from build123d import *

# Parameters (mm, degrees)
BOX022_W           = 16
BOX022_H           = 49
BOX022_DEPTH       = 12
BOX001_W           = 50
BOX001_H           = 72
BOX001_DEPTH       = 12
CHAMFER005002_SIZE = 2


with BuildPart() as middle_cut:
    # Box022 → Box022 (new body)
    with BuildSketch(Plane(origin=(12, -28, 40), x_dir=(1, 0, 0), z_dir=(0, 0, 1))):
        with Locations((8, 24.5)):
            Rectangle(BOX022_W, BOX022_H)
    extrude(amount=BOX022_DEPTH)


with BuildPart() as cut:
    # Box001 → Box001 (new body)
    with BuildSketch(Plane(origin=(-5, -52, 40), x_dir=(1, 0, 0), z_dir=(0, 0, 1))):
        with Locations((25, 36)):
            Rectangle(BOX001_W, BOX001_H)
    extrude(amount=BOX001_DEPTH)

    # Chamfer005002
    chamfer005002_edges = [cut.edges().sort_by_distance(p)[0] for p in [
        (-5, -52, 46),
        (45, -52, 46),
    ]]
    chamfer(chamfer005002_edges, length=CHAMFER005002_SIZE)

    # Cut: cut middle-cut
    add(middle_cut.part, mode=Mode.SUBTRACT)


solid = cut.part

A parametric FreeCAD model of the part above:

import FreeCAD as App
import Part
import Sketcher

V = App.Vector


def edges_at(feature, points):
    """Names of the edges that pass closest to the given points."""
    edges = feature.Shape.Edges
    near = lambda p: min(range(len(edges)), key=lambda i: edges[i].distToShape(Part.Vertex(*p))[0])
    return sorted({f"Edge{near(p) + 1}" for p in points})


def add_polygon(sketch, points):
    """Adds a closed chain of lines whose ends are joined by coincident constraints."""
    first, n = sketch.GeometryCount, len(points)
    for a, b in zip(points, points[1:] + points[:1]):
        sketch.addGeometry(Part.LineSegment(App.Vector(*a, 0), App.Vector(*b, 0)), False)
    for i in range(n):
        sketch.addConstraint(Sketcher.Constraint("Coincident", first + i, 2, first + (i + 1) % n, 1))

doc = App.newDocument("Part")
body = doc.addObject("PartDesign::Body", "Body")

# Sketch on XY plane
sketch1 = doc.addObject("Sketcher::SketchObject", "Sketch")
body.addObject(sketch1)
sketch1.AttachmentSupport = (doc.XY_Plane, [""])
sketch1.MapMode = "FlatFace"
sketch1.AttachmentOffset = App.Placement(V(0, 0, 40), App.Rotation())
add_polygon(sketch1, [(12, 21), (12, -28), (28, -28), (28, 21)])  # lines 0-3
sketch1.addConstraint(Sketcher.Constraint("Vertical", 0))
sketch1.addConstraint(Sketcher.Constraint("Horizontal", 1))
sketch1.addConstraint(Sketcher.Constraint("Vertical", 2))
sketch1.addConstraint(Sketcher.Constraint("Horizontal", 3))
sketch1.addConstraint(Sketcher.Constraint("DistanceX", 1, 1, 1, 2, 16.0))
sketch1.addConstraint(Sketcher.Constraint("DistanceY", 0, 2, 0, 1, 49.0))
sketch1.addConstraint(Sketcher.Constraint("DistanceX", -1, 1, 0, 2, 12.0))
sketch1.addConstraint(Sketcher.Constraint("DistanceY", 0, 2, -1, 1, 28.0))
pad1 = doc.addObject("PartDesign::Pad", "Pad")
body.addObject(pad1)
pad1.Profile = sketch1
pad1.Length = 12
body2 = doc.addObject("PartDesign::Body", "Body001")

# Sketch on XY plane
sketch2 = doc.addObject("Sketcher::SketchObject", "Sketch001")
body2.addObject(sketch2)
sketch2.AttachmentSupport = (doc.getObject("XY_Plane001"), [""])
sketch2.MapMode = "FlatFace"
sketch2.AttachmentOffset = App.Placement(V(0, 0, 40), App.Rotation())
add_polygon(sketch2, [(-5, 20), (-5, -52), (45, -52), (45, 20)])  # lines 0-3
sketch2.addConstraint(Sketcher.Constraint("Vertical", 0))
sketch2.addConstraint(Sketcher.Constraint("Horizontal", 1))
sketch2.addConstraint(Sketcher.Constraint("Vertical", 2))
sketch2.addConstraint(Sketcher.Constraint("Horizontal", 3))
sketch2.addConstraint(Sketcher.Constraint("DistanceX", 1, 1, 1, 2, 50.0))
sketch2.addConstraint(Sketcher.Constraint("DistanceY", 0, 2, 0, 1, 72.0))
sketch2.addConstraint(Sketcher.Constraint("DistanceX", 0, 2, -1, 1, 5.0))
sketch2.addConstraint(Sketcher.Constraint("DistanceY", 0, 2, -1, 1, 52.0))
pad2 = doc.addObject("PartDesign::Pad", "Pad001")
body2.addObject(pad2)
pad2.Profile = sketch2
pad2.Length = 12
doc.recompute()

chamfer = doc.addObject("PartDesign::Chamfer", "Chamfer")
body2.addObject(chamfer)
chamfer.Base = (pad2, edges_at(pad2, [(-5, -52, 46), (45, -52, 46)]))
chamfer.Size = 2
doc.recompute()

boolean = doc.addObject("PartDesign::Boolean", "Boolean")
body2.addObject(boolean)
boolean.Type = "Cut"
boolean.addObjects([body])

doc.recompute()
